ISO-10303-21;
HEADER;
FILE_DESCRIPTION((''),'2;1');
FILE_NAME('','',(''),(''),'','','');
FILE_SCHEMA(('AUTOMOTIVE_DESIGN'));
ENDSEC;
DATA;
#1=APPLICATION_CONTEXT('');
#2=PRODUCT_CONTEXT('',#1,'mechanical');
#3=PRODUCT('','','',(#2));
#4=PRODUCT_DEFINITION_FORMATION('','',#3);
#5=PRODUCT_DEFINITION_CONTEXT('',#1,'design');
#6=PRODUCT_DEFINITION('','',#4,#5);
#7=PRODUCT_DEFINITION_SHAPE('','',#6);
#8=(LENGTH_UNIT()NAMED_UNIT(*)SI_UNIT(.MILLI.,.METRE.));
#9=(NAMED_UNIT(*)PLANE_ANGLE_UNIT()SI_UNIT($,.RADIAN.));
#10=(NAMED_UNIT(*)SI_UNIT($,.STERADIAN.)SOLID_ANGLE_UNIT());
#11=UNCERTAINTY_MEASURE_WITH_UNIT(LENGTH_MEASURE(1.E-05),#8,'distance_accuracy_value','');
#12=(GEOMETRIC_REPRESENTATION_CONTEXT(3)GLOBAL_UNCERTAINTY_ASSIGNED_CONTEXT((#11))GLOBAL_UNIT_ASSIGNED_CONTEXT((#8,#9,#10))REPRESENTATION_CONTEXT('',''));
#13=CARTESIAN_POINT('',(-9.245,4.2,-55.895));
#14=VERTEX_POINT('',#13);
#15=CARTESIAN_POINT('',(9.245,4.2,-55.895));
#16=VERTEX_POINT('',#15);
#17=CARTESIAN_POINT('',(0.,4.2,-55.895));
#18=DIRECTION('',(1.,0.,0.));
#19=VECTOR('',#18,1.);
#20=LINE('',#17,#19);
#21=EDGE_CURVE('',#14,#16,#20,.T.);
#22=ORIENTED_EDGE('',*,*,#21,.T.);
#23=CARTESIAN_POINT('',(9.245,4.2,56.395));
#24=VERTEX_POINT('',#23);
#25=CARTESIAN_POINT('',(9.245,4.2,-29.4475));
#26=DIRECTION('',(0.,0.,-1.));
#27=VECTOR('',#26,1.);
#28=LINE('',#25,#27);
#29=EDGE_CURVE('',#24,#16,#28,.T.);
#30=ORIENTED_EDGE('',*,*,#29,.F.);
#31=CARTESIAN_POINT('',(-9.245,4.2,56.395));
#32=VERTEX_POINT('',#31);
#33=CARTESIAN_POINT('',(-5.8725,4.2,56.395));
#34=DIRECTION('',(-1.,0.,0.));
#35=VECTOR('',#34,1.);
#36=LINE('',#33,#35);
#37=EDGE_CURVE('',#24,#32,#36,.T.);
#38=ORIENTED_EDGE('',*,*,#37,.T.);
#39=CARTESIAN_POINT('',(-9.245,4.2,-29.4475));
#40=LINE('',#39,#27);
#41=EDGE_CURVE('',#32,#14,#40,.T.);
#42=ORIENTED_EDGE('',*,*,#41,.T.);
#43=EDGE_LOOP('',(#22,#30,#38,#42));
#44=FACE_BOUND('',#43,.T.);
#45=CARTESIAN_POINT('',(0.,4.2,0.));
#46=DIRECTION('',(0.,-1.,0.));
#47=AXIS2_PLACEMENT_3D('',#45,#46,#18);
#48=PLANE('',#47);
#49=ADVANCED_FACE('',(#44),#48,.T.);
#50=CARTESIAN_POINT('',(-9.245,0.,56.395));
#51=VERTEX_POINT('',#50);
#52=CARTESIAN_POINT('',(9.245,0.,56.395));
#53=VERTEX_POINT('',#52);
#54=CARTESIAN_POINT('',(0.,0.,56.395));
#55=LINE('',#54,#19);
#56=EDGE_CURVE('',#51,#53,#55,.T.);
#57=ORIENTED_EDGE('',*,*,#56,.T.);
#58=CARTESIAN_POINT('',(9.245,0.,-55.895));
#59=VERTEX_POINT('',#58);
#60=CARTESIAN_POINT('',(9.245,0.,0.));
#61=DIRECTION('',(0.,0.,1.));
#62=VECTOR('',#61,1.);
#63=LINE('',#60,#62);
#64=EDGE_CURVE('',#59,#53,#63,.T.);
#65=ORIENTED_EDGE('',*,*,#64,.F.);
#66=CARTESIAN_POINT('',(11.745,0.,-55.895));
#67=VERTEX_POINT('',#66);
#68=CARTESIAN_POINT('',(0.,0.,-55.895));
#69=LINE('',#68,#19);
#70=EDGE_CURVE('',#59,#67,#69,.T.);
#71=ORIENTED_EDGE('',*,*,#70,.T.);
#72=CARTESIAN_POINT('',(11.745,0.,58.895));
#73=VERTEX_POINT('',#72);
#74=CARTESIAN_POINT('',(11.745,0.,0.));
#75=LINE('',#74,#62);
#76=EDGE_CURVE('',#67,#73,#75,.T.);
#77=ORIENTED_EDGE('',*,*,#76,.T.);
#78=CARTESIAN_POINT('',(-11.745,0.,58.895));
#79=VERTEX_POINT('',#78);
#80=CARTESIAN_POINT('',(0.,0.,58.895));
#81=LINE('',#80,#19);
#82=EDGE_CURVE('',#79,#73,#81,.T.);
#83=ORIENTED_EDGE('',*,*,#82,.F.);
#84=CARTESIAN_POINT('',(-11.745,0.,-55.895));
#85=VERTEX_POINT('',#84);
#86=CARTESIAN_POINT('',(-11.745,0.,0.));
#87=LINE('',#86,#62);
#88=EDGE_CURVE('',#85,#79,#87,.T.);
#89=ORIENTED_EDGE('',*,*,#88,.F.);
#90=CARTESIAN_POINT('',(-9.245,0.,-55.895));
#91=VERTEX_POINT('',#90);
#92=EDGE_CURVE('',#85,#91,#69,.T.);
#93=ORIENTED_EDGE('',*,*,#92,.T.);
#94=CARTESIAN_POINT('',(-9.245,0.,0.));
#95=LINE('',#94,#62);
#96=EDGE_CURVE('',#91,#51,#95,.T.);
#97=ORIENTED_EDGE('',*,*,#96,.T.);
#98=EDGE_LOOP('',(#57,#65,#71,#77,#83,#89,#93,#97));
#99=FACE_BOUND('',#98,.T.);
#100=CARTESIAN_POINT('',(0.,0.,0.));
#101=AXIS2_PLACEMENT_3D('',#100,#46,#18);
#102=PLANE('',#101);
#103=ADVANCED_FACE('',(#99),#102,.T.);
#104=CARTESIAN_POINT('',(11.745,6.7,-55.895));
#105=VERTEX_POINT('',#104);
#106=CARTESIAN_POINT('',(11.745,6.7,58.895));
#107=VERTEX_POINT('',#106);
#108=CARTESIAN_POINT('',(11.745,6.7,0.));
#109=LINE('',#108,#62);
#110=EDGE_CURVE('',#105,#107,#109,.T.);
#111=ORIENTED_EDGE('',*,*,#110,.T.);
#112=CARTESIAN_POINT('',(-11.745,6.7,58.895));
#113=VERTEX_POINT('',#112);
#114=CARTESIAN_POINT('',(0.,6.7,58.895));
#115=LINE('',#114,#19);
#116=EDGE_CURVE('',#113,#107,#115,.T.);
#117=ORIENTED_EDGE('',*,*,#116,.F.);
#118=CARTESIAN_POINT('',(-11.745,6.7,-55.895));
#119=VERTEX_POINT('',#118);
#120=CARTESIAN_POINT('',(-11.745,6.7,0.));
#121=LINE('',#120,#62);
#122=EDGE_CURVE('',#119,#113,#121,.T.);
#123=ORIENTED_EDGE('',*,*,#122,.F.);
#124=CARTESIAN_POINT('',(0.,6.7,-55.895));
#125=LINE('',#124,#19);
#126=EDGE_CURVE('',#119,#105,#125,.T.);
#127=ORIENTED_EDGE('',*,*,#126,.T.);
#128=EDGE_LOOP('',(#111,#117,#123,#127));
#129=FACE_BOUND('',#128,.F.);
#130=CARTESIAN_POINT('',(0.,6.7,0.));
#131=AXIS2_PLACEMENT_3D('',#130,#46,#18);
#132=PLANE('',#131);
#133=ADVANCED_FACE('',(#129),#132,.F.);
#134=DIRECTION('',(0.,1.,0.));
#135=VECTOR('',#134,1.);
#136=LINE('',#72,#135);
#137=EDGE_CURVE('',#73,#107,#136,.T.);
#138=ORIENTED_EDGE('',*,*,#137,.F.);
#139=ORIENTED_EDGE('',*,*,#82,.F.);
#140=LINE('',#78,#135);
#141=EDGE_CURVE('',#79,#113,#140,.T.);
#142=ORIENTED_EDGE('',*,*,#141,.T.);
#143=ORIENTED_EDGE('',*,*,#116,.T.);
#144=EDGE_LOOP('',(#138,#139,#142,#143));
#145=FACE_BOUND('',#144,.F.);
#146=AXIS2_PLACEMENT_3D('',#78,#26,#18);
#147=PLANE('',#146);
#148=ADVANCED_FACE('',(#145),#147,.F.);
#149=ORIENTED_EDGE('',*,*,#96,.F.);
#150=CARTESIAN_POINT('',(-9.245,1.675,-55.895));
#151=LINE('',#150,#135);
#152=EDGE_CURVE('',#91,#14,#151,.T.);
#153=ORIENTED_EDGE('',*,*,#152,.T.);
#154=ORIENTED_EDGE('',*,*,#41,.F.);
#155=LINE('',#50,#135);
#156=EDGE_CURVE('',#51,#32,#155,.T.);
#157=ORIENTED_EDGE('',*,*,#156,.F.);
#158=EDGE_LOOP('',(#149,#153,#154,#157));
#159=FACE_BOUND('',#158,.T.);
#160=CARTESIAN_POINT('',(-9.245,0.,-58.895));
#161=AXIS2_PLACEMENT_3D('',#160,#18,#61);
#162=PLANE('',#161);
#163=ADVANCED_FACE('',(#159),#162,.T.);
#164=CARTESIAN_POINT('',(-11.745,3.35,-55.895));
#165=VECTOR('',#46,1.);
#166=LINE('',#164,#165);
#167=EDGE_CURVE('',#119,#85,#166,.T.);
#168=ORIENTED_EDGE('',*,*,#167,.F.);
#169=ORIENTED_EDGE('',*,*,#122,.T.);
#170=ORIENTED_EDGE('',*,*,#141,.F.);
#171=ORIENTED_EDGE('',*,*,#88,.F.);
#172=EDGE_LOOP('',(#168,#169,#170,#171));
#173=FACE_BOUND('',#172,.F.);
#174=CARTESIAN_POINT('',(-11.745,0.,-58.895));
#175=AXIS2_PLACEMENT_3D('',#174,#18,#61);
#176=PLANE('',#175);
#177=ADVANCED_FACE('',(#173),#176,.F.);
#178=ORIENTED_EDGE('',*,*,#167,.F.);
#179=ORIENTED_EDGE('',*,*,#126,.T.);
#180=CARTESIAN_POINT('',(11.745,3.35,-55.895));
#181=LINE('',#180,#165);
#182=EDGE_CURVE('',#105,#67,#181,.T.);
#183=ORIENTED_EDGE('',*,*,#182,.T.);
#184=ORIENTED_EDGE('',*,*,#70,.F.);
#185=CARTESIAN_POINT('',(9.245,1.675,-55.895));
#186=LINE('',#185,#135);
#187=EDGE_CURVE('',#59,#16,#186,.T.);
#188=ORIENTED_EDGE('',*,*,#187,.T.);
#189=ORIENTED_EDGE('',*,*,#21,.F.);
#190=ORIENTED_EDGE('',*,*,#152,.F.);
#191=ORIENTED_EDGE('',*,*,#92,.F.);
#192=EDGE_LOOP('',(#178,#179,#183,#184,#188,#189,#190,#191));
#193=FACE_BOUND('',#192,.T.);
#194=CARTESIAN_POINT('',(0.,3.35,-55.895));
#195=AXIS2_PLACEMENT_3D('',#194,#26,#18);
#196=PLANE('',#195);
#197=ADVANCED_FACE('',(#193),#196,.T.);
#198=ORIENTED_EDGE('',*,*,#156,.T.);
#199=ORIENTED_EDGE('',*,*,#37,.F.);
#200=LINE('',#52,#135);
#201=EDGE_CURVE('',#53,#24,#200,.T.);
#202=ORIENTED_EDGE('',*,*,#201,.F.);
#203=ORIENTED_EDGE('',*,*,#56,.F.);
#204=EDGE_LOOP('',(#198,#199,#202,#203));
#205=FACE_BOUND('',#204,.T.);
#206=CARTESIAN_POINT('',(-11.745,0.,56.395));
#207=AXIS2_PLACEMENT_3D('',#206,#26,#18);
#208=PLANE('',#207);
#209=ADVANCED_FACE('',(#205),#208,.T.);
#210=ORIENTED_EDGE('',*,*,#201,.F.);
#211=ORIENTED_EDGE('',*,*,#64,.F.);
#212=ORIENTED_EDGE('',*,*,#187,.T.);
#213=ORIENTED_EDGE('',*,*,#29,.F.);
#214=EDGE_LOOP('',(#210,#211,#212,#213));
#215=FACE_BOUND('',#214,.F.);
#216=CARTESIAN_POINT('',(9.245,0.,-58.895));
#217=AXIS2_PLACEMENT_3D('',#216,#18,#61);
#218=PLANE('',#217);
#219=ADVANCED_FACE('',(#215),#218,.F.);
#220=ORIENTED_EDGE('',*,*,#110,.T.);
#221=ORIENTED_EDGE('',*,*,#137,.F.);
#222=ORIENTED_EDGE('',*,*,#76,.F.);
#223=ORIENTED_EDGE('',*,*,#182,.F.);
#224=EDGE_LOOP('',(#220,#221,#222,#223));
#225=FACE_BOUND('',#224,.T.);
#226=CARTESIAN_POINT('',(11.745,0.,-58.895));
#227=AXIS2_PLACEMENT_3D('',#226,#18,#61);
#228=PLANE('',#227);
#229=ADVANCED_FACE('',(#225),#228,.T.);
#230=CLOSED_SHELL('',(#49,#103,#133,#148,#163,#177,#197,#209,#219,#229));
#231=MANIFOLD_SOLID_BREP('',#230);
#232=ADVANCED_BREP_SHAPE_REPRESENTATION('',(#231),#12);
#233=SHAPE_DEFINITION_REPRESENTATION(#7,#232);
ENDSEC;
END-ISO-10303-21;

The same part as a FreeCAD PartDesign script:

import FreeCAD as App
import Part
import Sketcher
from FreeCAD import Vector


def faces_at(feature, points):
    """Names of the faces that lie closest to the given points."""
    faces = feature.Shape.Faces
    near = lambda p: min(range(len(faces)), key=lambda i: faces[i].distToShape(Part.Vertex(*p))[0])
    return sorted({f"Face{near(p) + 1}" for p in points})

doc = App.newDocument("Part")
params = doc.addObject("Spreadsheet::Sheet", "Params")
for row, (alias, value) in enumerate([
    ("sketch1_width", "23.49 mm"),
    ("sketch1_height", "117.79 mm"),
    ("pad1_length", "6.7 mm"),
    ("thickness_wall", "2.5 mm"),
    ("sketch2_height", "6.7 mm"),
    ("sketch2_width", "23.49 mm"),
    ("pocket1_length", "3 mm"),
], start=1):
    params.set(f"A{row}", alias)
    params.set(f"B{row}", "=" + value)
    params.setAlias(f"B{row}", alias)

body = doc.addObject("PartDesign::Body", "Body")

# Sketch on XZ plane
sketch1 = body.newObject("Sketcher::SketchObject", "Sketch")
sketch1.AttachmentSupport = (doc.getObject("XZ_Plane"), [""])
sketch1.MapMode = "FlatFace"
sketch1.addGeometry([
    Part.LineSegment(Vector(-11.745, 58.895, 0), Vector(-11.745, -58.895, 0)),
    Part.LineSegment(Vector(-11.745, -58.895, 0), Vector(11.745, -58.895, 0)),
    Part.LineSegment(Vector(11.745, -58.895, 0), Vector(11.745, 58.895, 0)),
    Part.LineSegment(Vector(11.745, 58.895, 0), Vector(-11.745, 58.895, 0)),
], False)
sketch1.addConstraint([
    Sketcher.Constraint("Coincident", 0, 2, 1, 1),
    Sketcher.Constraint("Coincident", 1, 2, 2, 1),
    Sketcher.Constraint("Coincident", 2, 2, 3, 1),
    Sketcher.Constraint("Coincident", 3, 2, 0, 1),
    Sketcher.Constraint("Vertical", 0),
    Sketcher.Constraint("Horizontal", 1),
    Sketcher.Constraint("Vertical", 2),
    Sketcher.Constraint("Horizontal", 3),
    Sketcher.Constraint("Symmetric", 0, 2, 2, 2, -1, 1),
    Sketcher.Constraint("DistanceX", 1, 1, 1, 2, 23.49),
    Sketcher.Constraint("DistanceY", 0, 2, 0, 1, 117.79),
])
sketch1.setExpression("Constraints[9]", "Params.sketch1_width")
sketch1.setExpression("Constraints[10]", "Params.sketch1_height")
pad1 = body.newObject("PartDesign::Pad", "Pad")
pad1.Profile = sketch1
pad1.setExpression("Length", "Params.pad1_length")
pad1.Reversed = True
doc.recompute()

thickness = body.newObject("PartDesign::Thickness", "Thickness")
thickness.Base = (pad1, faces_at(pad1, [(0, 0, 0)]))
thickness.setExpression("Value", "Params.thickness_wall")
thickness.Reversed = True
thickness.Join = "Arc"

# Sketch on XY plane
sketch2 = body.newObject("Sketcher::SketchObject", "Sketch001")
sketch2.AttachmentSupport = (doc.getObject("XY_Plane"), [""])
sketch2.MapMode = "FlatFace"
sketch2.AttachmentOffset = App.Placement(Vector(0, 0, -58.895), App.Rotation())
sketch2.addGeometry([
    Part.LineSegment(Vector(-11.745, 0, 0), Vector(-11.745, 6.7, 0)),
    Part.LineSegment(Vector(-11.745, 6.7, 0), Vector(11.745, 6.7, 0)),
    Part.LineSegment(Vector(11.745, 6.7, 0), Vector(11.745, 0, 0)),
    Part.LineSegment(Vector(11.745, 0, 0), Vector(-11.745, 0, 0)),
], False)
sketch2.addConstraint([
    Sketcher.Constraint("Coincident", 0, 2, 1, 1),
    Sketcher.Constraint("Coincident", 1, 2, 2, 1),
    Sketcher.Constraint("Coincident", 2, 2, 3, 1),
    Sketcher.Constraint("Coincident", 3, 2, 0, 1),
    Sketcher.Constraint("Vertical", 0),
    Sketcher.Constraint("Horizontal", 1),
    Sketcher.Constraint("Vertical", 2),
    Sketcher.Constraint("Horizontal", 3),
    Sketcher.Constraint("Symmetric", 2, 2, 3, 2, -1, 1),
    Sketcher.Constraint("DistanceY", 0, 1, 0, 2, 6.7),
    Sketcher.Constraint("DistanceX", 1, 1, 1, 2, 23.49),
])
sketch2.setExpression("Constraints[9]", "Params.sketch2_height")
sketch2.setExpression("Constraints[10]", "Params.sketch2_width")
pocket1 = body.newObject("PartDesign::Pocket", "Pocket")
pocket1.Profile = sketch2
pocket1.setExpression("Length", "Params.pocket1_length")
pocket1.Reversed = True

doc.recompute()
